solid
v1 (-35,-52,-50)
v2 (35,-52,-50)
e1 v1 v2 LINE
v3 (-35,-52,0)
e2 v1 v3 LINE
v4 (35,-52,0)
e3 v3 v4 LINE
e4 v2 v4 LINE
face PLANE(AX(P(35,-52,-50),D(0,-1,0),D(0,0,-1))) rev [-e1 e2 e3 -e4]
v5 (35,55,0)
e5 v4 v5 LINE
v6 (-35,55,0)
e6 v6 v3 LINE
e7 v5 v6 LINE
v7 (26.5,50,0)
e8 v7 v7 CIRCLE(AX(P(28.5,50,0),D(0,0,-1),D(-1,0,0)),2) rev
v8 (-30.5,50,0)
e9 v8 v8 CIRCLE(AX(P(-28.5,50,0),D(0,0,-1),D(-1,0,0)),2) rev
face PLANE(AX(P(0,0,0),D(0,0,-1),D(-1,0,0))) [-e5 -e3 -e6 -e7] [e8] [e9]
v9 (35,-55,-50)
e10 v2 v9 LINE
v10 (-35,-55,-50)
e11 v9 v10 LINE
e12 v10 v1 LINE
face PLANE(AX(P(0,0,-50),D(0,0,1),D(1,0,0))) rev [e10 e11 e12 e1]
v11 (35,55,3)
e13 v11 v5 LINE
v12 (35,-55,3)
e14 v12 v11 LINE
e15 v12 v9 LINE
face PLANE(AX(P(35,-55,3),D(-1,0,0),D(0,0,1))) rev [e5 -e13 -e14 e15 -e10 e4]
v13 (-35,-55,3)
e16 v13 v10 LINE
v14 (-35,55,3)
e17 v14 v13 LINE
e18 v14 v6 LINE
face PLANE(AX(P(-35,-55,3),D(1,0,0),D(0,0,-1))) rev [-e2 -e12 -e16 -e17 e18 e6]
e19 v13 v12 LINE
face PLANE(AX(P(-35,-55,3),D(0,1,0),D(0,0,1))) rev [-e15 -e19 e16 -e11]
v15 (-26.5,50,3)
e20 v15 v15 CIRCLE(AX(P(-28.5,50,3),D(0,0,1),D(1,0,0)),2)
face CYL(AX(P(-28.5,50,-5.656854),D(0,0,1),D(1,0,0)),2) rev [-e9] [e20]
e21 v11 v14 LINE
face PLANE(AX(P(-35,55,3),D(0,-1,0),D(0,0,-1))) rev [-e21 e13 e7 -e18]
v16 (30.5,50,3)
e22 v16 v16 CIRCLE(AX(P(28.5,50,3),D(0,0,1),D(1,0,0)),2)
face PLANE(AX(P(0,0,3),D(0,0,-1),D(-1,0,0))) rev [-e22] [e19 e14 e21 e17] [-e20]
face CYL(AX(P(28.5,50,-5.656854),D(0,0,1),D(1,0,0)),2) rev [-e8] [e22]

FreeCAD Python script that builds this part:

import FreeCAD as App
import Part
import Sketcher


def add_polygon(sketch, points):
    """Adds a closed chain of lines whose ends are joined by coincident constraints."""
    first, n = sketch.GeometryCount, len(points)
    for a, b in zip(points, points[1:] + points[:1]):
        sketch.addGeometry(Part.LineSegment(App.Vector(*a, 0), App.Vector(*b, 0)), False)
    for i in range(n):
        sketch.addConstraint(Sketcher.Constraint("Coincident", first + i, 2, first + (i + 1) % n, 1))

doc = App.newDocument("Part")
body = doc.addObject("PartDesign::Body", "Body")

sketch1 = body.newObject("Sketcher::SketchObject", "Sketch")
sketch1.AttachmentSupport = (doc.getObject("XY_Plane"), [""])
sketch1.MapMode = "FlatFace"
add_polygon(sketch1, [(-35, 55), (-35, -55), (35, -55), (35, 55)])
sketch1.addConstraint([
    Sketcher.Constraint("Vertical", 0),
    Sketcher.Constraint("Horizontal", 1),
    Sketcher.Constraint("Vertical", 2),
    Sketcher.Constraint("Horizontal", 3),
    Sketcher.Constraint("Symmetric", 0, 2, 2, 2, -1, 1),
    Sketcher.Constraint("DistanceX", 1, 1, 1, 2, 70.0),
    Sketcher.Constraint("DistanceY", 0, 2, 0, 1, 110.0),
])
pad1 = body.newObject("PartDesign::Pad", "Pad")
pad1.Profile = sketch1
pad1.Length = 3

sketch2 = body.newObject("Sketcher::SketchObject", "Sketch001")
sketch2.AttachmentSupport = (doc.getObject("XY_Plane"), [""])
sketch2.MapMode = "FlatFace"
add_polygon(sketch2, [(35, -52), (35, -55), (-35, -55), (-35, -52)])
sketch2.addConstraint([
    Sketcher.Constraint("Vertical", 0),
    Sketcher.Constraint("Horizontal", 1),
    Sketcher.Constraint("Vertical", 2),
    Sketcher.Constraint("Horizontal", 3),
    Sketcher.Constraint("DistanceX", 1, 2, 1, 1, 70.0),
    Sketcher.Constraint("DistanceY", 0, 2, 0, 1, 3.0),
    Sketcher.Constraint("DistanceX", -1, 1, 0, 2, 35.0),
    Sketcher.Constraint("DistanceY", 0, 2, -1, 1, 55.0),
])
pad2 = body.newObject("PartDesign::Pad", "Pad001")
pad2.Profile = sketch2
pad2.Length = 50
pad2.Reversed = True

sketch3 = body.newObject("Sketcher::SketchObject", "Sketch002")
sketch3.AttachmentSupport = (doc.getObject("XY_Plane"), [""])
sketch3.MapMode = "FlatFace"
sketch3.AttachmentOffset = App.Placement(App.Vector(0, 0, 3), App.Rotation())
sketch3.addGeometry([
    Part.Circle(App.Vector(-28.5, 50, 0), App.Vector(0, 0, 1), 2),
    Part.Circle(App.Vector(28.5, 50, 0), App.Vector(0, 0, 1), 2),
], False)
sketch3.addConstraint([
    Sketcher.Constraint("Equal", 0, 1),
    Sketcher.Constraint("Symmetric", 0, 3, 1, 3, -2),
    Sketcher.Constraint("Diameter", 0, 4.0),
    Sketcher.Constraint("DistanceY", -1, 1, 0, 3, 50.0),
    Sketcher.Constraint("DistanceX", 0, 3, 1, 3, 57.0),
])
pocket1 = body.newObject("PartDesign::Pocket", "Pocket")
pocket1.Profile = sketch3
pocket1.Length = 3

doc.recompute()
